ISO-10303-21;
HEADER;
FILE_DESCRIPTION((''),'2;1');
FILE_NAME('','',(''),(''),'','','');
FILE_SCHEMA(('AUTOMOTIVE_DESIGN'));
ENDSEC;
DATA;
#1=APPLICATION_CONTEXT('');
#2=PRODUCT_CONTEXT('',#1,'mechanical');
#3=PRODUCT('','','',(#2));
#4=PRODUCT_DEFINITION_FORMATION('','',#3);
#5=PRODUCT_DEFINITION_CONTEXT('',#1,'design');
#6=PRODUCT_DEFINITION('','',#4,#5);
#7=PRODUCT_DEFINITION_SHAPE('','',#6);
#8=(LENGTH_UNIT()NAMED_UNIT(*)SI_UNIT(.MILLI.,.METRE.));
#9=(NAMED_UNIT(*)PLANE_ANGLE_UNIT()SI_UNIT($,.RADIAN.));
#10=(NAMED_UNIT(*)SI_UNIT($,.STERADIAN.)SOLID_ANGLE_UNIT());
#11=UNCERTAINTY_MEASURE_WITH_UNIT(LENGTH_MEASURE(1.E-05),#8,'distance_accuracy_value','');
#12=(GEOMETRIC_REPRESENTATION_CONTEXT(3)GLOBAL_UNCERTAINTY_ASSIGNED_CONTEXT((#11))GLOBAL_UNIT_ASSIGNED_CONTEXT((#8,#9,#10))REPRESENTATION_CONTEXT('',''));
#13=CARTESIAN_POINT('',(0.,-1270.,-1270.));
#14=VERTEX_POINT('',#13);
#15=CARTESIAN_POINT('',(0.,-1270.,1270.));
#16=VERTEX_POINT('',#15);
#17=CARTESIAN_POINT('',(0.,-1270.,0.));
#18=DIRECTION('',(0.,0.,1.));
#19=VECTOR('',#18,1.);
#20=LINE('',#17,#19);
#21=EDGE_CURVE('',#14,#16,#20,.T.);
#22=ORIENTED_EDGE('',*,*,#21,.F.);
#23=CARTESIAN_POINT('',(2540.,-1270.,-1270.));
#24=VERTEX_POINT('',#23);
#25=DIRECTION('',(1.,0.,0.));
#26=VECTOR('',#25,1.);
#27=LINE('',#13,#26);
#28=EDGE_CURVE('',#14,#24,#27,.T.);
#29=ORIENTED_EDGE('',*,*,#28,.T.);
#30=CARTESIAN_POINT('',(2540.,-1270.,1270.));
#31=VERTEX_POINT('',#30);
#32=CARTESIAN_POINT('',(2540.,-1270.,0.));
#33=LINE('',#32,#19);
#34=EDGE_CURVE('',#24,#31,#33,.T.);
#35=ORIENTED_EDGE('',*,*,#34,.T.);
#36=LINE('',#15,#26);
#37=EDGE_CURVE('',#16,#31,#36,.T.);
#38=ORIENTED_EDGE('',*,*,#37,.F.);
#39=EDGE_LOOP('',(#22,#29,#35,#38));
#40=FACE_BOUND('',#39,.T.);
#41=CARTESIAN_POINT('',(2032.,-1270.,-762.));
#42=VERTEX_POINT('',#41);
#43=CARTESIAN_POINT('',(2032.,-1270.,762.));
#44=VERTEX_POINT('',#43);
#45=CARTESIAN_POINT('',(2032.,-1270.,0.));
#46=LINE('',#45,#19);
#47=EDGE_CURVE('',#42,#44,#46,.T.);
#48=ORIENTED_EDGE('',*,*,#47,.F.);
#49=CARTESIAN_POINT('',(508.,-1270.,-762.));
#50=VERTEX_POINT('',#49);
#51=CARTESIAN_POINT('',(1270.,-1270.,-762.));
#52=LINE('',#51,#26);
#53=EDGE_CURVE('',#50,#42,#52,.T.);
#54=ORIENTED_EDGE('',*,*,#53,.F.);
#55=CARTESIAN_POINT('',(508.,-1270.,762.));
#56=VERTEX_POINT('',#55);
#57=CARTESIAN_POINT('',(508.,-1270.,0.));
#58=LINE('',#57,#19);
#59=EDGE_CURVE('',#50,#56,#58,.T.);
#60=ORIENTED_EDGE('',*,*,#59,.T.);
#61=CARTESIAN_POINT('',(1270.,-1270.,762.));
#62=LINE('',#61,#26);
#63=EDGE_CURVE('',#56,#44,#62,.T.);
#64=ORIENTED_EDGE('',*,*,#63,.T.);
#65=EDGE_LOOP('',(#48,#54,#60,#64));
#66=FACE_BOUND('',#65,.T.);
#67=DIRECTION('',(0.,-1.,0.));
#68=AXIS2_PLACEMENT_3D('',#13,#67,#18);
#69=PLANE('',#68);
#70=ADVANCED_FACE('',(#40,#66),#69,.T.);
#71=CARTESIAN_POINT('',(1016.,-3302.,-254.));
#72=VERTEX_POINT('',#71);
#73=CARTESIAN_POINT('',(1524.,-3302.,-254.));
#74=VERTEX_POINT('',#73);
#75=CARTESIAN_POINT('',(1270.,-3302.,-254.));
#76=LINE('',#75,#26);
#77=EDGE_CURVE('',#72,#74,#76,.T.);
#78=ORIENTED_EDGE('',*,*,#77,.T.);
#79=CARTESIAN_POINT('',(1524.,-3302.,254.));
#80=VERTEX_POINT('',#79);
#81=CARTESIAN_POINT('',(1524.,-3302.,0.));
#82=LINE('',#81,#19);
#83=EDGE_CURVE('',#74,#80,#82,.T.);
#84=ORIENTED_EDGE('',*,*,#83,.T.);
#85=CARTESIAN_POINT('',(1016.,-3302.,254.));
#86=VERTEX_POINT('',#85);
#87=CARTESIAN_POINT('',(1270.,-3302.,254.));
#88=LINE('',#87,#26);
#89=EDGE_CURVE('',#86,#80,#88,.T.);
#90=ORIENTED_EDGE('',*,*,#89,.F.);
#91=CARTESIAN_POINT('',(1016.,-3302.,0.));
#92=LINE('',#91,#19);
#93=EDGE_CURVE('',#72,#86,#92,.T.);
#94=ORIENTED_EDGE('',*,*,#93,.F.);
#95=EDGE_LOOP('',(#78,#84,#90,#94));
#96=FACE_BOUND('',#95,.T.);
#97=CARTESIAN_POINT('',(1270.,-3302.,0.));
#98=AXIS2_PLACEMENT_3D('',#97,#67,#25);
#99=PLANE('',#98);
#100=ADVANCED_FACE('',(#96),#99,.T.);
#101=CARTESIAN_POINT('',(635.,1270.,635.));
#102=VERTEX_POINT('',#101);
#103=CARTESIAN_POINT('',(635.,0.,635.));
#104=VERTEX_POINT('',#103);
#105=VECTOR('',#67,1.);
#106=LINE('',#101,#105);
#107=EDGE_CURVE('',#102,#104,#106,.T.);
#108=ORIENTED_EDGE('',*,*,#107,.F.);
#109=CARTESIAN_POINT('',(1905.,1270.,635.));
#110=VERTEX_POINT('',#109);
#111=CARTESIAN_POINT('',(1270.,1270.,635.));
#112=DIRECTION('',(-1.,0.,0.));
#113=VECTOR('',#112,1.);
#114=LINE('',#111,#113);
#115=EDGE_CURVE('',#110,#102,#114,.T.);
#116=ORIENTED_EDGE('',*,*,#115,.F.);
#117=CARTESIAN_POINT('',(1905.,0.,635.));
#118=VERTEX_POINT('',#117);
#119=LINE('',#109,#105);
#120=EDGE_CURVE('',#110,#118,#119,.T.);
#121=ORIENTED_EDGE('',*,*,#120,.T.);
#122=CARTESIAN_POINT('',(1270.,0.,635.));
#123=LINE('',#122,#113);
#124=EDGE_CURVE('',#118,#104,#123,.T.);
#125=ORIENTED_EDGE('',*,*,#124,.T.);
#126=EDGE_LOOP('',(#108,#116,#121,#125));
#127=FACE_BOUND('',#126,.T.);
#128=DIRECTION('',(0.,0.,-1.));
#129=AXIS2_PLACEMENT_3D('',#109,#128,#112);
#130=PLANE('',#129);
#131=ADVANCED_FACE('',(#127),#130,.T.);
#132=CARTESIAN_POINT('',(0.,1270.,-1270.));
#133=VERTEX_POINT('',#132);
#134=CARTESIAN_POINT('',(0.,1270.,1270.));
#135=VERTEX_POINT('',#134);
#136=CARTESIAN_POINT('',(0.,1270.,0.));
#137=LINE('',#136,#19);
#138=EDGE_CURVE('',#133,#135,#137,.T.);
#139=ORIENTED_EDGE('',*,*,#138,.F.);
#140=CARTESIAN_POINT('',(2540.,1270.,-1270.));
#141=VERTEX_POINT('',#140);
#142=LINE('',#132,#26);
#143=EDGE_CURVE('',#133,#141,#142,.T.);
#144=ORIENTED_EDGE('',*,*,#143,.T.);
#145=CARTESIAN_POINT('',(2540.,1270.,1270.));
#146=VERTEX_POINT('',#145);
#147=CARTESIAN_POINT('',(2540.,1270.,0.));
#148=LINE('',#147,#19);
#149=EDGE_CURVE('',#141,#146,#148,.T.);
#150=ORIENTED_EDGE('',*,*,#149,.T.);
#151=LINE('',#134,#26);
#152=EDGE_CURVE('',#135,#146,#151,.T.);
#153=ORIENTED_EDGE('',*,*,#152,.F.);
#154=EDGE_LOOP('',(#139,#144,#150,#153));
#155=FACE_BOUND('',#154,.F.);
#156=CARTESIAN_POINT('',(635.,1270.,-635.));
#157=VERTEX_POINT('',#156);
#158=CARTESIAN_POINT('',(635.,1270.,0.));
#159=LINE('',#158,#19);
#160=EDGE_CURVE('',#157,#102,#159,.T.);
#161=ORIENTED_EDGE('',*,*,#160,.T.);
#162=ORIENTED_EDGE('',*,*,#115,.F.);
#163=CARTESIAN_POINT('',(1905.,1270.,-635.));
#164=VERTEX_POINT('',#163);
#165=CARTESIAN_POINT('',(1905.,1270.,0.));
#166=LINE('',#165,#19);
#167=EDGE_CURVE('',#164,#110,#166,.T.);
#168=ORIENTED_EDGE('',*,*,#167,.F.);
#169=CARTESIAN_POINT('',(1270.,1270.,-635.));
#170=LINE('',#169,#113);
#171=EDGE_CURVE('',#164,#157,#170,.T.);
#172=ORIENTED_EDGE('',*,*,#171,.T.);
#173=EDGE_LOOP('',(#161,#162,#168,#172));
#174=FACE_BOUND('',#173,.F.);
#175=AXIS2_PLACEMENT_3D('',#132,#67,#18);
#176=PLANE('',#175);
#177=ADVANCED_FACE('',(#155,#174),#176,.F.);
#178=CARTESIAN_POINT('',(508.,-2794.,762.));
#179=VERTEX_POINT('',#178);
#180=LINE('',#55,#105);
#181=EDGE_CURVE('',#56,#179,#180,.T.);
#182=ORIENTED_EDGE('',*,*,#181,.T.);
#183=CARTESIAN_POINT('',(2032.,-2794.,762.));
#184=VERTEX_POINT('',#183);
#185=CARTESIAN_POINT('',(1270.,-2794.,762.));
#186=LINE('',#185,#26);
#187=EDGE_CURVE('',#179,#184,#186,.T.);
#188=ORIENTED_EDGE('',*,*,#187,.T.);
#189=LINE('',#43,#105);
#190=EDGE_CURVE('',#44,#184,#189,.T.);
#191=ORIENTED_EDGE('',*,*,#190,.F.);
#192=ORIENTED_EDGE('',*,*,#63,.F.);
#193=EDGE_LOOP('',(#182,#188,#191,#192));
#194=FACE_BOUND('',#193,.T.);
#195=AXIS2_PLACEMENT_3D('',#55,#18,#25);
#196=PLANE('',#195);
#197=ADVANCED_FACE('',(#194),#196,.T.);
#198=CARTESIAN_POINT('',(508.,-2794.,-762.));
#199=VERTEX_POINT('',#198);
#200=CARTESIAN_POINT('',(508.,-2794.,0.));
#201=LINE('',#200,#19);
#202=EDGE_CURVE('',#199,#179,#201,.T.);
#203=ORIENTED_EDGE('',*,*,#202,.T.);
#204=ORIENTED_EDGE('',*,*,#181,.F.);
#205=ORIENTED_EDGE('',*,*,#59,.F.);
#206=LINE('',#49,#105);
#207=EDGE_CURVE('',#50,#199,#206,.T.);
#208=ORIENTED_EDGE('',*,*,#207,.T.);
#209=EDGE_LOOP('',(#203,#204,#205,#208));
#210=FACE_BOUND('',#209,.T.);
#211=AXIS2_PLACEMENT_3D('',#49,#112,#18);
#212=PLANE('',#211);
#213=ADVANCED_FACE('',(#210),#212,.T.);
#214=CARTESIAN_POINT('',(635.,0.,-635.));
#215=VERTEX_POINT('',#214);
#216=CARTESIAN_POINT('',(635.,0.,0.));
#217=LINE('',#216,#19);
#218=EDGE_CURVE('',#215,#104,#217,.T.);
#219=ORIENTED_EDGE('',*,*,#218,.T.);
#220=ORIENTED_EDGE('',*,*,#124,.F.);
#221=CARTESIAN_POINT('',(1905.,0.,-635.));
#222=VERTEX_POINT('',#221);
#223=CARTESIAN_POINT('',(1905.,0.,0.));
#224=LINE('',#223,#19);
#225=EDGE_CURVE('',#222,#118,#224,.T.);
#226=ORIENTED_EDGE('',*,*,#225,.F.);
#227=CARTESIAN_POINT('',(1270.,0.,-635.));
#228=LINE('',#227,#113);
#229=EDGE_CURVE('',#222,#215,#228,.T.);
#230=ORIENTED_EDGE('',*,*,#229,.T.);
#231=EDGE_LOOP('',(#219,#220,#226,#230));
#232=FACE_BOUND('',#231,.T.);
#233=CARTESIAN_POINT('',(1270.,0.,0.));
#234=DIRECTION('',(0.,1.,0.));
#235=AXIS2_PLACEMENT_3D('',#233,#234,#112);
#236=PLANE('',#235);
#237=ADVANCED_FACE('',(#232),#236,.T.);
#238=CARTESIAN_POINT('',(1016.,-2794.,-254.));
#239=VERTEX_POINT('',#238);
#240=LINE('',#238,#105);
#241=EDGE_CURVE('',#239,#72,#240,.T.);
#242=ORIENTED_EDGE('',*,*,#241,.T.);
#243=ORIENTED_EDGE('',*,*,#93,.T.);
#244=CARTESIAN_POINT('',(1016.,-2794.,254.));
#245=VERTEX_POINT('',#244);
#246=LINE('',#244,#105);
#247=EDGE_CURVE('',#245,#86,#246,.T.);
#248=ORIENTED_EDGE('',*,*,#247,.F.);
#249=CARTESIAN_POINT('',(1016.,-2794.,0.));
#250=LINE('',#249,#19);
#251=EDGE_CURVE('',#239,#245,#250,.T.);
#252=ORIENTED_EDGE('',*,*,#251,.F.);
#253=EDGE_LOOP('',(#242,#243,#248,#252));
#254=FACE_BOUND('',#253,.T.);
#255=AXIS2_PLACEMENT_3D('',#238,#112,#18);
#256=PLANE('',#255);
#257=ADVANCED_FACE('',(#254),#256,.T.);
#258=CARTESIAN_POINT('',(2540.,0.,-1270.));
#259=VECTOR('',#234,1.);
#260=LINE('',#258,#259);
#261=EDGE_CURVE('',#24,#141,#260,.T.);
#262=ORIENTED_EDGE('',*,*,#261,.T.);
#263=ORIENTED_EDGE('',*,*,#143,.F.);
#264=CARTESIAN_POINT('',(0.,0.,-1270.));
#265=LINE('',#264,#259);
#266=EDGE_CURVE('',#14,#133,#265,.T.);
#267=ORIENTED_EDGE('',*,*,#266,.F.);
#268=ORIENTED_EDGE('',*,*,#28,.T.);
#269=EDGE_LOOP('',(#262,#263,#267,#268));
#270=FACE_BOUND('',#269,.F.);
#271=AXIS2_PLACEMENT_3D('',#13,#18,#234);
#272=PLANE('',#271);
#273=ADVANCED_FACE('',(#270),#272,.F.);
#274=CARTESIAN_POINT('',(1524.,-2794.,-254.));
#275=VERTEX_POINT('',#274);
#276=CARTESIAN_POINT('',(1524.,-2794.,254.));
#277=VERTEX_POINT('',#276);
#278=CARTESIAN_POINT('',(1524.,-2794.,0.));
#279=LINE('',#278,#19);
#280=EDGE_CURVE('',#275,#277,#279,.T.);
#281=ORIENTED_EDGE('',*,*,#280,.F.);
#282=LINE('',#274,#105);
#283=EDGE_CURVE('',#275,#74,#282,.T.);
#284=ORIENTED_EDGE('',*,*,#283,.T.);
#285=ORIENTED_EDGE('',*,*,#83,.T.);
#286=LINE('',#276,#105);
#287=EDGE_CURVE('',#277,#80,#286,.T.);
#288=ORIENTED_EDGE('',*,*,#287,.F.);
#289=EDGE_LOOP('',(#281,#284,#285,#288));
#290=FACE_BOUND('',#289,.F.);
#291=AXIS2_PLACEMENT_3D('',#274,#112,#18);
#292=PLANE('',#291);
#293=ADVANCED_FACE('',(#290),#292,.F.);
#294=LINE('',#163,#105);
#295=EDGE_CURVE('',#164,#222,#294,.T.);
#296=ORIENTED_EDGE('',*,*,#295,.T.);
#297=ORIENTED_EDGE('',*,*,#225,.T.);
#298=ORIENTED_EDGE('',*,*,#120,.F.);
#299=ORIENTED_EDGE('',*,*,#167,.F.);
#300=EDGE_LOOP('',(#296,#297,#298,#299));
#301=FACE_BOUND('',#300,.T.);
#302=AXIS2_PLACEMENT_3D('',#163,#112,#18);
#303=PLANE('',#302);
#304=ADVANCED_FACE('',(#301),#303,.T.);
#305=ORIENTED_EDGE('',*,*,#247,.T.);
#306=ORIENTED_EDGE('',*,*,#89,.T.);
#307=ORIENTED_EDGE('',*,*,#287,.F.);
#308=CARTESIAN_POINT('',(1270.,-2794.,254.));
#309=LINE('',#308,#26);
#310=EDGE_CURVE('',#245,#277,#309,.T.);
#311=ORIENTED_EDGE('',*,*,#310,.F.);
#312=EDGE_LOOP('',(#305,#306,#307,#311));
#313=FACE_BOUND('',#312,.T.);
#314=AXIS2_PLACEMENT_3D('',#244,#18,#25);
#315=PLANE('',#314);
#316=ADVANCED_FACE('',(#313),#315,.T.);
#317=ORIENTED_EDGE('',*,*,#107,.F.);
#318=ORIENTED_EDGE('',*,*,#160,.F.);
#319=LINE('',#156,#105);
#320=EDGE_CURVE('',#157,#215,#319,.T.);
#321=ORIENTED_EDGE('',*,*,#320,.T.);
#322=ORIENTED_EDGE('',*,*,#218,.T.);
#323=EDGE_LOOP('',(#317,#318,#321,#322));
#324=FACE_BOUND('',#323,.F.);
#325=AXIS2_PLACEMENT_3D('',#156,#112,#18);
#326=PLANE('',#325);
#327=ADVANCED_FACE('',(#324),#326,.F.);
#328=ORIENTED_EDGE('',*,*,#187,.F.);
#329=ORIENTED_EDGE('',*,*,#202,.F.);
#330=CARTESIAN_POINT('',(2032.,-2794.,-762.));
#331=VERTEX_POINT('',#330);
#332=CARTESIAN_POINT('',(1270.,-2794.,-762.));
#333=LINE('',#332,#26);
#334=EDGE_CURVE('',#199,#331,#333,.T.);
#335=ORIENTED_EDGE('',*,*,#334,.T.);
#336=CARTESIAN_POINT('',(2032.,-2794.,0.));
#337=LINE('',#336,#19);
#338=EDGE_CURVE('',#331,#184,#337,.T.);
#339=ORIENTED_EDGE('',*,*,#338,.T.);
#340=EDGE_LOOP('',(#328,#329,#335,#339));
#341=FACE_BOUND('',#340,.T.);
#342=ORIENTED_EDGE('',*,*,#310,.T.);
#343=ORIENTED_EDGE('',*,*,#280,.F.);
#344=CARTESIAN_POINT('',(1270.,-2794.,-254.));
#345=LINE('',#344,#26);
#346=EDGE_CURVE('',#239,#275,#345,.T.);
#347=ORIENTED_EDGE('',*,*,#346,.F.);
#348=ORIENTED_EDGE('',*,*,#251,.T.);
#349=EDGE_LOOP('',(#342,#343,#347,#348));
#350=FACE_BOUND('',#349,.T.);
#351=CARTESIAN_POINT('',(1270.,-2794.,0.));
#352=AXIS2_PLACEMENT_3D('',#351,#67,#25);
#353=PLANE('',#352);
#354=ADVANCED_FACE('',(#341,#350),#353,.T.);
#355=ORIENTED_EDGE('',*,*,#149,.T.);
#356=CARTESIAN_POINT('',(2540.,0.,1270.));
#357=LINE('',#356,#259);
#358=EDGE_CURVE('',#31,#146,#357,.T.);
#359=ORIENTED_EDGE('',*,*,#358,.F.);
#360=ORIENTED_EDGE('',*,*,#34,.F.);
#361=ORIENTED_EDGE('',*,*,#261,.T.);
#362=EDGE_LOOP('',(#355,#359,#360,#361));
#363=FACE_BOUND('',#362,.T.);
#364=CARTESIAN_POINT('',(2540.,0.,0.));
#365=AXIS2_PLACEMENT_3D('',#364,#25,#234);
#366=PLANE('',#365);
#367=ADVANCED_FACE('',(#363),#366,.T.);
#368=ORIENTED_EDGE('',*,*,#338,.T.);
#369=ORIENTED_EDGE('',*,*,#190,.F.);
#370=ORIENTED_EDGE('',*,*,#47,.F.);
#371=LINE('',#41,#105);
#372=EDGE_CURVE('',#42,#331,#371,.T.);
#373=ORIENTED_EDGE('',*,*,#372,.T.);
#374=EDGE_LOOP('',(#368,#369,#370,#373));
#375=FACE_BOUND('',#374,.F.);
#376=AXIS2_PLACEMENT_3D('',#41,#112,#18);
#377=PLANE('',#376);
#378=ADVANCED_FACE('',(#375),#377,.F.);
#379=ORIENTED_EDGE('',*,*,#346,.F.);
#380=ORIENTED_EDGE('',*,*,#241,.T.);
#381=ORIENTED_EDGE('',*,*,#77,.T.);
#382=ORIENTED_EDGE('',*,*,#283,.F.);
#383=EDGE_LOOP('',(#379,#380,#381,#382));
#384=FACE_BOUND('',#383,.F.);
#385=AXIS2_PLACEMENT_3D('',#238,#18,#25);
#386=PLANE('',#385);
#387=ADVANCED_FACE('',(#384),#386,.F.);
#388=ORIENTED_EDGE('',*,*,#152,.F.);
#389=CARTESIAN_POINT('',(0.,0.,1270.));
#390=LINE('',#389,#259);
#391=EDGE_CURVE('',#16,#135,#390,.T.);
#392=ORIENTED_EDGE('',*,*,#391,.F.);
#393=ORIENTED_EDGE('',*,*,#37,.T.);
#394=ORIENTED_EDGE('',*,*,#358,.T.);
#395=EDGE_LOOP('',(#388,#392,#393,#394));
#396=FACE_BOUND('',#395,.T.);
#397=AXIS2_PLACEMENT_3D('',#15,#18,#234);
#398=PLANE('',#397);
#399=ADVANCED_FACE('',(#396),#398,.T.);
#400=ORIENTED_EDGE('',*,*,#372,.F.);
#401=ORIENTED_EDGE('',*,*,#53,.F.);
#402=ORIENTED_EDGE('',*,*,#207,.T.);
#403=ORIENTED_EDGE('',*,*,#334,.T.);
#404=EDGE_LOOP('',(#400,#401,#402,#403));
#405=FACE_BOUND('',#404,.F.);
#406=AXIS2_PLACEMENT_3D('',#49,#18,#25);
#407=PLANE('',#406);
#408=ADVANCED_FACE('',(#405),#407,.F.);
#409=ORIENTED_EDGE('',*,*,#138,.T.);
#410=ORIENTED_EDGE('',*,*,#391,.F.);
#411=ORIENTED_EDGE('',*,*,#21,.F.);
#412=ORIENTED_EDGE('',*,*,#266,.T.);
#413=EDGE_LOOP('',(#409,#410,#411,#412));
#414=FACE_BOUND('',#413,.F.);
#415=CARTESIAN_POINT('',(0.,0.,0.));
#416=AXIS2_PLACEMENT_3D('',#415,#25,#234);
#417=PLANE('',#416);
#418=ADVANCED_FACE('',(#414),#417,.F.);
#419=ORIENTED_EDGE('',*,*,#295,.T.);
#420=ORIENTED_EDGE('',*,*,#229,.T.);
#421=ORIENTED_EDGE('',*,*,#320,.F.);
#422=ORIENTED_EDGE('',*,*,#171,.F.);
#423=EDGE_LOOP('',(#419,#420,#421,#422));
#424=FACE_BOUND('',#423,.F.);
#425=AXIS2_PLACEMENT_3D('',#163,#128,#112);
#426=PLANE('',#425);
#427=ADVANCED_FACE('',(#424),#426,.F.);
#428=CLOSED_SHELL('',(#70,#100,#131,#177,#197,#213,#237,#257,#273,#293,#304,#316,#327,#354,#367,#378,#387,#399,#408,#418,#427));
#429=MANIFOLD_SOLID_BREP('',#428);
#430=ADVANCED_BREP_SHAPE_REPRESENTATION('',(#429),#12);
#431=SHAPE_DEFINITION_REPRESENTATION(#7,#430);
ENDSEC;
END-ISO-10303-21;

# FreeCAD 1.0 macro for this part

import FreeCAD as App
import Part
import Sketcher
Q = App.Units.Quantity

doc = App.newDocument("Part")
body = doc.addObject("PartDesign::Body", "Body")

sketch1 = doc.addObject("Sketcher::SketchObject", "Sketch")
body.addObject(sketch1)
sketch1.AttachmentSupport = (doc.YZ_Plane, [""])
sketch1.MapMode = "FlatFace"
sketch1.addGeometry([
    Part.LineSegment(App.Vector(-1270, 1270, 0), App.Vector(-1270, -1270, 0)),
    Part.LineSegment(App.Vector(-1270, -1270, 0), App.Vector(1270, -1270, 0)),
    Part.LineSegment(App.Vector(1270, -1270, 0), App.Vector(1270, 1270, 0)),
    Part.LineSegment(App.Vector(1270, 1270, 0), App.Vector(-1270, 1270, 0)),
], False)
sketch1.addConstraint([
    Sketcher.Constraint("Coincident", 0, 2, 1, 1),
    Sketcher.Constraint("Coincident", 1, 2, 2, 1),
    Sketcher.Constraint("Coincident", 2, 2, 3, 1),
    Sketcher.Constraint("Coincident", 3, 2, 0, 1),
    Sketcher.Constraint("Vertical", 0),
    Sketcher.Constraint("Horizontal", 1),
    Sketcher.Constraint("Vertical", 2),
    Sketcher.Constraint("Horizontal", 3),
    Sketcher.Constraint("Symmetric", 0, 2, 2, 2, -1, 1),
    Sketcher.Constraint("Equal", 3, 0),
    Sketcher.Constraint("DistanceX", 1, 1, 1, 2, Q("100 in")),
])
pad1 = doc.addObject("PartDesign::Pad", "Pad")
body.addObject(pad1)
pad1.Profile = sketch1
pad1.Length = Q("100 in")

sketch2 = doc.addObject("Sketcher::SketchObject", "Sketch001")
body.addObject(sketch2)
sketch2.AttachmentSupport = (doc.XZ_Plane, [""])
sketch2.MapMode = "FlatFace"
sketch2.AttachmentOffset = App.Placement(App.Vector(0, 0, 50 * 25.4), App.Rotation())
sketch2.addGeometry([
    Part.LineSegment(App.Vector(508, 762, 0), App.Vector(508, -762, 0)),
    Part.LineSegment(App.Vector(508, -762, 0), App.Vector(2032, -762, 0)),
    Part.LineSegment(App.Vector(2032, -762, 0), App.Vector(2032, 762, 0)),
    Part.LineSegment(App.Vector(2032, 762, 0), App.Vector(508, 762, 0)),
], False)
sketch2.addConstraint([
    Sketcher.Constraint("Coincident", 0, 2, 1, 1),
    Sketcher.Constraint("Coincident", 1, 2, 2, 1),
    Sketcher.Constraint("Coincident", 2, 2, 3, 1),
    Sketcher.Constraint("Coincident", 3, 2, 0, 1),
    Sketcher.Constraint("Vertical", 0),
    Sketcher.Constraint("Horizontal", 1),
    Sketcher.Constraint("Vertical", 2),
    Sketcher.Constraint("Horizontal", 3),
    Sketcher.Constraint("Equal", 3, 0),
    Sketcher.Constraint("DistanceX", 1, 1, 1, 2, Q("60 in")),
    Sketcher.Constraint("DistanceX", -1, 1, 0, 2, Q("20 in")),
    Sketcher.Constraint("DistanceY", 0, 2, -1, 1, Q("30 in")),
])
pad2 = doc.addObject("PartDesign::Pad", "Pad001")
body.addObject(pad2)
pad2.Profile = sketch2
pad2.Length = Q("60 in")

sketch3 = doc.addObject("Sketcher::SketchObject", "Sketch002")
body.addObject(sketch3)
sketch3.AttachmentSupport = (doc.XZ_Plane, [""])
sketch3.MapMode = "FlatFace"
sketch3.AttachmentOffset = App.Placement(App.Vector(0, 0, 110 * 25.4), App.Rotation())
sketch3.addGeometry([
    Part.LineSegment(App.Vector(1016, 254, 0), App.Vector(1016, -254, 0)),
    Part.LineSegment(App.Vector(1016, -254, 0), App.Vector(1524, -254, 0)),
    Part.LineSegment(App.Vector(1524, -254, 0), App.Vector(1524, 254, 0)),
    Part.LineSegment(App.Vector(1524, 254, 0), App.Vector(1016, 254, 0)),
], False)
sketch3.addConstraint([
    Sketcher.Constraint("Coincident", 0, 2, 1, 1),
    Sketcher.Constraint("Coincident", 1, 2, 2, 1),
    Sketcher.Constraint("Coincident", 2, 2, 3, 1),
    Sketcher.Constraint("Coincident", 3, 2, 0, 1),
    Sketcher.Constraint("Vertical", 0),
    Sketcher.Constraint("Horizontal", 1),
    Sketcher.Constraint("Vertical", 2),
    Sketcher.Constraint("Horizontal", 3),
    Sketcher.Constraint("Equal", 3, 0),
    Sketcher.Constraint("DistanceX", 1, 1, 1, 2, Q("20 in")),
    Sketcher.Constraint("DistanceX", -1, 1, 0, 2, Q("40 in")),
    Sketcher.Constraint("DistanceY", 0, 2, -1, 1, Q("10 in")),
])
pad3 = doc.addObject("PartDesign::Pad", "Pad002")
body.addObject(pad3)
pad3.Profile = sketch3
pad3.Length = Q("20 in")

sketch4 = doc.addObject("Sketcher::SketchObject", "Sketch003")
body.addObject(sketch4)
sketch4.AttachmentSupport = (doc.XZ_Plane, [""])
sketch4.MapMode = "FlatFace"
sketch4.AttachmentOffset = App.Placement(App.Vector(0, 0, -50 * 25.4), App.Rotation())
sketch4.addGeometry([
    Part.LineSegment(App.Vector(1905, 635, 0), App.Vector(1905, -635, 0)),
    Part.LineSegment(App.Vector(1905, -635, 0), App.Vector(635, -635, 0)),
    Part.LineSegment(App.Vector(635, -635, 0), App.Vector(635, 635, 0)),
    Part.LineSegment(App.Vector(635, 635, 0), App.Vector(1905, 635, 0)),
], False)
sketch4.addConstraint([
    Sketcher.Constraint("Coincident", 0, 2, 1, 1),
    Sketcher.Constraint("Coincident", 1, 2, 2, 1),
    Sketcher.Constraint("Coincident", 2, 2, 3, 1),
    Sketcher.Constraint("Coincident", 3, 2, 0, 1),
    Sketcher.Constraint("Vertical", 0),
    Sketcher.Constraint("Horizontal", 1),
    Sketcher.Constraint("Vertical", 2),
    Sketcher.Constraint("Horizontal", 3),
    Sketcher.Constraint("Equal", 3, 0),
    Sketcher.Constraint("DistanceX", 1, 2, 1, 1, Q("50 in")),
    Sketcher.Constraint("DistanceX", -1, 1, 0, 2, Q("75 in")),
    Sketcher.Constraint("DistanceY", 0, 2, -1, 1, Q("25 in")),
])
pocket1 = doc.addObject("PartDesign::Pocket", "Pocket")
body.addObject(pocket1)
pocket1.Profile = sketch4
pocket1.Length = Q("50 in")
pocket1.Reversed = True

doc.recompute()
